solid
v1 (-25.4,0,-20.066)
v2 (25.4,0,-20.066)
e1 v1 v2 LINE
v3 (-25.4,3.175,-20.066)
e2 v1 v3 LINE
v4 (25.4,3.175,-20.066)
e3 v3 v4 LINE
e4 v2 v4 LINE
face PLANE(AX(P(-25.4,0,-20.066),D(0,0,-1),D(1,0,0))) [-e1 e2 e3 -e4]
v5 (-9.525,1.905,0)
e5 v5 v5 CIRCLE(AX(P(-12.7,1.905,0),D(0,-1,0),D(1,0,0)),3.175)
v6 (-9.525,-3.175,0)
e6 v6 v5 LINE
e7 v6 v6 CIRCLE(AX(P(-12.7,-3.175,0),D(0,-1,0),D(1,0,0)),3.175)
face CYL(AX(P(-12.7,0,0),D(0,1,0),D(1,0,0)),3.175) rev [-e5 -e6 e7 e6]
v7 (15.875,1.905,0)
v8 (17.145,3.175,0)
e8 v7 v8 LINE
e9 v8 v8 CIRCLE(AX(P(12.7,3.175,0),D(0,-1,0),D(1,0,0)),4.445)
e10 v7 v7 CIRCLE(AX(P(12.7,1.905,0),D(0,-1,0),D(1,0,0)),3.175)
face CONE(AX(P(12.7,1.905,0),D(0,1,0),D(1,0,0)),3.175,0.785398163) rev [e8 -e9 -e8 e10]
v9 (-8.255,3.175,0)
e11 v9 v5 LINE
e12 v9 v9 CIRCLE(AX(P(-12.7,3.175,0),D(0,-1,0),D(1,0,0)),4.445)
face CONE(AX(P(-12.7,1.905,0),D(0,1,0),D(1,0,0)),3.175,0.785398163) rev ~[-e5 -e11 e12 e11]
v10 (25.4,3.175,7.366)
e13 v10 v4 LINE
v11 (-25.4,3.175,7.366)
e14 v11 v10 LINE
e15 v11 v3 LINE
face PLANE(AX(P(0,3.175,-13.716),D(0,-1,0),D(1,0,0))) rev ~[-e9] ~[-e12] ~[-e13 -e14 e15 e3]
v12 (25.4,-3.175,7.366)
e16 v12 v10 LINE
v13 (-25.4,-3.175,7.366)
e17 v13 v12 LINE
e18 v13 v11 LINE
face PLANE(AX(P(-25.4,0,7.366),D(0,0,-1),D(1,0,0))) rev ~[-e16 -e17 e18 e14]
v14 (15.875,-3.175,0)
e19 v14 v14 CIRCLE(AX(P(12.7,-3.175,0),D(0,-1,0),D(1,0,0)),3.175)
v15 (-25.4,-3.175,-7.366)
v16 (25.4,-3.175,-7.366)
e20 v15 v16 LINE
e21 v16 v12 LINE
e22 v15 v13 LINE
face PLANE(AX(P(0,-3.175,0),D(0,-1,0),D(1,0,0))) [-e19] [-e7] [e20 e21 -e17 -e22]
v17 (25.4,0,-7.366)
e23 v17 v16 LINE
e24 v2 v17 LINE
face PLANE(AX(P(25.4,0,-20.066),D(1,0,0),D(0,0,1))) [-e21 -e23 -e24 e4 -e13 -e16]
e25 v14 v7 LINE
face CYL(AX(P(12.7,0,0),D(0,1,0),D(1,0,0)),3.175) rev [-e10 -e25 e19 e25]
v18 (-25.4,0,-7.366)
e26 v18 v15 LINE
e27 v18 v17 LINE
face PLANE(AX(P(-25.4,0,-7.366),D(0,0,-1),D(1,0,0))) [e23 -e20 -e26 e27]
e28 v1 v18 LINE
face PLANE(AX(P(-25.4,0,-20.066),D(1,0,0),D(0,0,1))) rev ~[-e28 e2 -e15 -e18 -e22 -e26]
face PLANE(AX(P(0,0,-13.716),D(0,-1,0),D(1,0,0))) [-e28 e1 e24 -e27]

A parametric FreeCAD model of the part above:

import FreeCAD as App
import Part
import Sketcher
Q = App.Units.Quantity


def edges_at(feature, points):
    """Names of the edges that pass closest to the given points."""
    edges = feature.Shape.Edges
    near = lambda p: min(range(len(edges)), key=lambda i: edges[i].distToShape(Part.Vertex(*p))[0])
    return sorted({f"Edge{near(p) + 1}" for p in points})


def add_polygon(sketch, points):
    """Adds a closed chain of lines whose ends are joined by coincident constraints."""
    first, n = sketch.GeometryCount, len(points)
    for a, b in zip(points, points[1:] + points[:1]):
        sketch.addGeometry(Part.LineSegment(App.Vector(*a, 0), App.Vector(*b, 0)), False)
    for i in range(n):
        sketch.addConstraint(Sketcher.Constraint("Coincident", first + i, 2, first + (i + 1) % n, 1))

doc = App.newDocument("Part")
body = doc.addObject("PartDesign::Body", "Body")

# Sketch on XZ plane
sketch1 = body.newObject("Sketcher::SketchObject", "Sketch")
sketch1.AttachmentSupport = (doc.getObject("XZ_Plane"), [""])
sketch1.MapMode = "FlatFace"
add_polygon(sketch1, [(-25.4, 7.366), (-25.4, -7.366), (25.4, -7.366), (25.4, 7.366)])  # lines 0-3
sketch1.addGeometry(Part.Circle(App.Vector(-12.7, 0, 0), App.Vector(0, 0, 1), 3.175), False)  # 4
sketch1.addGeometry(Part.Circle(App.Vector(12.7, 0, 0), App.Vector(0, 0, 1), 3.175), False)  # 5
sketch1.addConstraint([
    Sketcher.Constraint("Vertical", 0),
    Sketcher.Constraint("Horizontal", 1),
    Sketcher.Constraint("Vertical", 2),
    Sketcher.Constraint("Horizontal", 3),
    Sketcher.Constraint("Equal", 4, 5),
    Sketcher.Constraint("Symmetric", 4, 3, 5, 3, -1, 1),
    Sketcher.Constraint("Symmetric", 0, 2, 2, 2, -1, 1),
    Sketcher.Constraint("PointOnObject", 4, 3, -1),
    Sketcher.Constraint("Diameter", 4, Q("0.25 in")),
    Sketcher.Constraint("DistanceX", 1, 1, 1, 2, Q("2 in")),
    Sketcher.Constraint("DistanceX", 4, 3, 5, 3, Q("1 in")),
    Sketcher.Constraint("DistanceY", 0, 2, 0, 1, Q("0.58 in")),
])
pad1 = body.newObject("PartDesign::Pad", "Pad")
pad1.Profile = sketch1
pad1.Length = Q("0.25 in")
pad1.Midplane = True

# Sketch on XZ plane
sketch2 = body.newObject("Sketcher::SketchObject", "Sketch001")
sketch2.AttachmentSupport = (doc.getObject("XZ_Plane"), [""])
sketch2.MapMode = "FlatFace"
add_polygon(sketch2, [(-25.4, -7.366), (-25.4, -20.066), (25.4, -20.066), (25.4, -7.366)])  # lines 0-3
sketch2.addConstraint([
    Sketcher.Constraint("Vertical", 0),
    Sketcher.Constraint("Horizontal", 1),
    Sketcher.Constraint("Vertical", 2),
    Sketcher.Constraint("Horizontal", 3),
    Sketcher.Constraint("DistanceX", 1, 1, 1, 2, Q("2 in")),
    Sketcher.Constraint("DistanceY", 0, 2, 0, 1, Q("0.5 in")),
    Sketcher.Constraint("DistanceX", 0, 2, -1, 1, Q("1 in")),
    Sketcher.Constraint("DistanceY", 0, 2, -1, 1, Q("0.79 in")),
])
pad2 = body.newObject("PartDesign::Pad", "Pad001")
pad2.Profile = sketch2
pad2.Length = Q("0.125 in")
pad2.Reversed = True
doc.recompute()

chamfer = body.newObject("PartDesign::Chamfer", "Chamfer")
chamfer.Base = (pad2, edges_at(pad2, [(9.525, 3.175, 0)]))
chamfer.ChamferType = "Two distances"
chamfer.Size = Q("0.05 in")
chamfer.Size2 = Q("0.05 in")
doc.recompute()

chamfer2 = body.newObject("PartDesign::Chamfer", "Chamfer001")
chamfer2.Base = (chamfer, edges_at(chamfer, [(-15.875, 3.175, 0)]))
chamfer2.ChamferType = "Two distances"
chamfer2.Size = Q("0.05 in")
chamfer2.Size2 = Q("0.05 in")

doc.recompute()
